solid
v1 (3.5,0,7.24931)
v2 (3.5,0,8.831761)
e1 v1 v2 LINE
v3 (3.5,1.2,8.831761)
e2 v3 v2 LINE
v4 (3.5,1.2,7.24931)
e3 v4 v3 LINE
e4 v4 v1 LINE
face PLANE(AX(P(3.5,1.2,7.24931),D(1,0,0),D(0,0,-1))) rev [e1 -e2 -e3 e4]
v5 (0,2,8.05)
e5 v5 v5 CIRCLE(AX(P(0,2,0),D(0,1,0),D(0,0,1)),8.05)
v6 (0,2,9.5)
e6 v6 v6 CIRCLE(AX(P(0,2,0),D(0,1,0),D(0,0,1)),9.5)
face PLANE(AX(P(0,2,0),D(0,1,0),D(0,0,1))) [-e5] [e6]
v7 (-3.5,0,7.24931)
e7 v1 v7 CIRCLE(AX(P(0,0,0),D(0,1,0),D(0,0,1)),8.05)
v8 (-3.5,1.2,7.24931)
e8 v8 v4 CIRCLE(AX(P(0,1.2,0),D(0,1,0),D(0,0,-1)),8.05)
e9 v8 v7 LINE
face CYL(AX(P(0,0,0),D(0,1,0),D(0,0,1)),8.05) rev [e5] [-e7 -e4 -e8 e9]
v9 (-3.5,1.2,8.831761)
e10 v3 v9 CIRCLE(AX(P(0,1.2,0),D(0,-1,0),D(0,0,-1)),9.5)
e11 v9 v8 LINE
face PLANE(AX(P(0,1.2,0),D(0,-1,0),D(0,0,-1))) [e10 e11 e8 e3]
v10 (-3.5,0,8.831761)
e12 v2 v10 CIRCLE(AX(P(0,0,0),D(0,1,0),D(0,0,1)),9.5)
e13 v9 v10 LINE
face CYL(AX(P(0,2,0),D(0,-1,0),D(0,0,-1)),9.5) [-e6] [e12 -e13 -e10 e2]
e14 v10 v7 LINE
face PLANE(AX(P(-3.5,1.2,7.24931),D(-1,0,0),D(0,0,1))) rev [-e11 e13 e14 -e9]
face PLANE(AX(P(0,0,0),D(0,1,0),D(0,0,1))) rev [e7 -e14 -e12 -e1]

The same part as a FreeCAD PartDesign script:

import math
import FreeCAD as App
import Part
import Sketcher
Q = App.Units.Quantity

doc = App.newDocument("Part")
body = doc.addObject("PartDesign::Body", "Body")

# Sketch on XZ plane
sketch1 = doc.addObject("Sketcher::SketchObject", "Sketch")
body.addObject(sketch1)
sketch1.AttachmentSupport = (doc.XZ_Plane, [""])
sketch1.MapMode = "FlatFace"
sketch1.addGeometry(Part.Circle(App.Vector(0, 0, 0), App.Vector(0, 0, 1), 10), False)
sketch1.addConstraint(Sketcher.Constraint("Coincident", 0, 3, -1, 1))
sketch1.addConstraint(Sketcher.Constraint("Diameter", 0, Q("19 mm")))
pad1 = doc.addObject("PartDesign::Pad", "Pad")
body.addObject(pad1)
pad1.Profile = sketch1
pad1.Length = 2
pad1.Reversed = True

# Sketch on XZ plane
sketch2 = doc.addObject("Sketcher::SketchObject", "Sketch001")
body.addObject(sketch2)
sketch2.AttachmentSupport = (doc.XZ_Plane, [""])
sketch2.MapMode = "FlatFace"
sketch2.AttachmentOffset = App.Placement(App.Vector(0, 0, -2), App.Rotation())
sketch2.addGeometry(Part.Circle(App.Vector(0, 0, 0), App.Vector(0, 0, 1), 8), False)
sketch2.addConstraint(Sketcher.Constraint("Coincident", 0, 3, -1, 1))
sketch2.addConstraint(Sketcher.Constraint("Diameter", 0, Q("16.1 mm")))
pocket1 = doc.addObject("PartDesign::Pocket", "Pocket")
body.addObject(pocket1)
pocket1.Profile = sketch2
pocket1.Type = "ThroughAll"
pocket1.Reversed = True

# Sketch on XZ plane
sketch3 = doc.addObject("Sketcher::SketchObject", "Sketch002")
body.addObject(sketch3)
sketch3.AttachmentSupport = (doc.XZ_Plane, [""])
sketch3.MapMode = "FlatFace"
sketch3.addGeometry(Part.LineSegment(App.Vector(-3.5, 8.8, 0), App.Vector(-3.5, 7.2, 0)), False)
sketch3.addGeometry(Part.ArcOfCircle(Part.Circle(App.Vector(0, 0, 0), App.Vector(0, 0, 1), 8.1), math.radians(64), math.radians(116)), False)
sketch3.addGeometry(Part.LineSegment(App.Vector(3.5, 7.2, 0), App.Vector(3.5, 8.8, 0)), False)
sketch3.addGeometry(Part.ArcOfCircle(Part.Circle(App.Vector(0, 0, 0), App.Vector(0, 0, 1), 9.5), math.radians(68), math.radians(112)), False)
sketch3.addConstraint(Sketcher.Constraint("Coincident", 0, 2, 1, 2))
sketch3.addConstraint(Sketcher.Constraint("Coincident", 1, 1, 2, 1))
sketch3.addConstraint(Sketcher.Constraint("Coincident", 2, 2, 3, 1))
sketch3.addConstraint(Sketcher.Constraint("Coincident", 3, 2, 0, 1))
sketch3.addConstraint(Sketcher.Constraint("Vertical", 0))
sketch3.addConstraint(Sketcher.Constraint("Vertical", 2))
sketch3.addConstraint(Sketcher.Constraint("Coincident", 1, 3, -1, 1))
sketch3.addConstraint(Sketcher.Constraint("Coincident", 3, 3, -1, 1))
sketch3.addConstraint(Sketcher.Constraint("Horizontal", 0, 2, 1, 1))
sketch3.addConstraint(Sketcher.Constraint("Radius", 3, Q("9.5 mm")))
sketch3.addConstraint(Sketcher.Constraint("Radius", 1, Q("8.05 mm")))
sketch3.addConstraint(Sketcher.Constraint("DistanceX", 0, 2, 1, 1, Q("7 mm")))
pocket2 = doc.addObject("PartDesign::Pocket", "Pocket001")
body.addObject(pocket2)
pocket2.Profile = sketch3
pocket2.Length = 1.2

doc.recompute()
